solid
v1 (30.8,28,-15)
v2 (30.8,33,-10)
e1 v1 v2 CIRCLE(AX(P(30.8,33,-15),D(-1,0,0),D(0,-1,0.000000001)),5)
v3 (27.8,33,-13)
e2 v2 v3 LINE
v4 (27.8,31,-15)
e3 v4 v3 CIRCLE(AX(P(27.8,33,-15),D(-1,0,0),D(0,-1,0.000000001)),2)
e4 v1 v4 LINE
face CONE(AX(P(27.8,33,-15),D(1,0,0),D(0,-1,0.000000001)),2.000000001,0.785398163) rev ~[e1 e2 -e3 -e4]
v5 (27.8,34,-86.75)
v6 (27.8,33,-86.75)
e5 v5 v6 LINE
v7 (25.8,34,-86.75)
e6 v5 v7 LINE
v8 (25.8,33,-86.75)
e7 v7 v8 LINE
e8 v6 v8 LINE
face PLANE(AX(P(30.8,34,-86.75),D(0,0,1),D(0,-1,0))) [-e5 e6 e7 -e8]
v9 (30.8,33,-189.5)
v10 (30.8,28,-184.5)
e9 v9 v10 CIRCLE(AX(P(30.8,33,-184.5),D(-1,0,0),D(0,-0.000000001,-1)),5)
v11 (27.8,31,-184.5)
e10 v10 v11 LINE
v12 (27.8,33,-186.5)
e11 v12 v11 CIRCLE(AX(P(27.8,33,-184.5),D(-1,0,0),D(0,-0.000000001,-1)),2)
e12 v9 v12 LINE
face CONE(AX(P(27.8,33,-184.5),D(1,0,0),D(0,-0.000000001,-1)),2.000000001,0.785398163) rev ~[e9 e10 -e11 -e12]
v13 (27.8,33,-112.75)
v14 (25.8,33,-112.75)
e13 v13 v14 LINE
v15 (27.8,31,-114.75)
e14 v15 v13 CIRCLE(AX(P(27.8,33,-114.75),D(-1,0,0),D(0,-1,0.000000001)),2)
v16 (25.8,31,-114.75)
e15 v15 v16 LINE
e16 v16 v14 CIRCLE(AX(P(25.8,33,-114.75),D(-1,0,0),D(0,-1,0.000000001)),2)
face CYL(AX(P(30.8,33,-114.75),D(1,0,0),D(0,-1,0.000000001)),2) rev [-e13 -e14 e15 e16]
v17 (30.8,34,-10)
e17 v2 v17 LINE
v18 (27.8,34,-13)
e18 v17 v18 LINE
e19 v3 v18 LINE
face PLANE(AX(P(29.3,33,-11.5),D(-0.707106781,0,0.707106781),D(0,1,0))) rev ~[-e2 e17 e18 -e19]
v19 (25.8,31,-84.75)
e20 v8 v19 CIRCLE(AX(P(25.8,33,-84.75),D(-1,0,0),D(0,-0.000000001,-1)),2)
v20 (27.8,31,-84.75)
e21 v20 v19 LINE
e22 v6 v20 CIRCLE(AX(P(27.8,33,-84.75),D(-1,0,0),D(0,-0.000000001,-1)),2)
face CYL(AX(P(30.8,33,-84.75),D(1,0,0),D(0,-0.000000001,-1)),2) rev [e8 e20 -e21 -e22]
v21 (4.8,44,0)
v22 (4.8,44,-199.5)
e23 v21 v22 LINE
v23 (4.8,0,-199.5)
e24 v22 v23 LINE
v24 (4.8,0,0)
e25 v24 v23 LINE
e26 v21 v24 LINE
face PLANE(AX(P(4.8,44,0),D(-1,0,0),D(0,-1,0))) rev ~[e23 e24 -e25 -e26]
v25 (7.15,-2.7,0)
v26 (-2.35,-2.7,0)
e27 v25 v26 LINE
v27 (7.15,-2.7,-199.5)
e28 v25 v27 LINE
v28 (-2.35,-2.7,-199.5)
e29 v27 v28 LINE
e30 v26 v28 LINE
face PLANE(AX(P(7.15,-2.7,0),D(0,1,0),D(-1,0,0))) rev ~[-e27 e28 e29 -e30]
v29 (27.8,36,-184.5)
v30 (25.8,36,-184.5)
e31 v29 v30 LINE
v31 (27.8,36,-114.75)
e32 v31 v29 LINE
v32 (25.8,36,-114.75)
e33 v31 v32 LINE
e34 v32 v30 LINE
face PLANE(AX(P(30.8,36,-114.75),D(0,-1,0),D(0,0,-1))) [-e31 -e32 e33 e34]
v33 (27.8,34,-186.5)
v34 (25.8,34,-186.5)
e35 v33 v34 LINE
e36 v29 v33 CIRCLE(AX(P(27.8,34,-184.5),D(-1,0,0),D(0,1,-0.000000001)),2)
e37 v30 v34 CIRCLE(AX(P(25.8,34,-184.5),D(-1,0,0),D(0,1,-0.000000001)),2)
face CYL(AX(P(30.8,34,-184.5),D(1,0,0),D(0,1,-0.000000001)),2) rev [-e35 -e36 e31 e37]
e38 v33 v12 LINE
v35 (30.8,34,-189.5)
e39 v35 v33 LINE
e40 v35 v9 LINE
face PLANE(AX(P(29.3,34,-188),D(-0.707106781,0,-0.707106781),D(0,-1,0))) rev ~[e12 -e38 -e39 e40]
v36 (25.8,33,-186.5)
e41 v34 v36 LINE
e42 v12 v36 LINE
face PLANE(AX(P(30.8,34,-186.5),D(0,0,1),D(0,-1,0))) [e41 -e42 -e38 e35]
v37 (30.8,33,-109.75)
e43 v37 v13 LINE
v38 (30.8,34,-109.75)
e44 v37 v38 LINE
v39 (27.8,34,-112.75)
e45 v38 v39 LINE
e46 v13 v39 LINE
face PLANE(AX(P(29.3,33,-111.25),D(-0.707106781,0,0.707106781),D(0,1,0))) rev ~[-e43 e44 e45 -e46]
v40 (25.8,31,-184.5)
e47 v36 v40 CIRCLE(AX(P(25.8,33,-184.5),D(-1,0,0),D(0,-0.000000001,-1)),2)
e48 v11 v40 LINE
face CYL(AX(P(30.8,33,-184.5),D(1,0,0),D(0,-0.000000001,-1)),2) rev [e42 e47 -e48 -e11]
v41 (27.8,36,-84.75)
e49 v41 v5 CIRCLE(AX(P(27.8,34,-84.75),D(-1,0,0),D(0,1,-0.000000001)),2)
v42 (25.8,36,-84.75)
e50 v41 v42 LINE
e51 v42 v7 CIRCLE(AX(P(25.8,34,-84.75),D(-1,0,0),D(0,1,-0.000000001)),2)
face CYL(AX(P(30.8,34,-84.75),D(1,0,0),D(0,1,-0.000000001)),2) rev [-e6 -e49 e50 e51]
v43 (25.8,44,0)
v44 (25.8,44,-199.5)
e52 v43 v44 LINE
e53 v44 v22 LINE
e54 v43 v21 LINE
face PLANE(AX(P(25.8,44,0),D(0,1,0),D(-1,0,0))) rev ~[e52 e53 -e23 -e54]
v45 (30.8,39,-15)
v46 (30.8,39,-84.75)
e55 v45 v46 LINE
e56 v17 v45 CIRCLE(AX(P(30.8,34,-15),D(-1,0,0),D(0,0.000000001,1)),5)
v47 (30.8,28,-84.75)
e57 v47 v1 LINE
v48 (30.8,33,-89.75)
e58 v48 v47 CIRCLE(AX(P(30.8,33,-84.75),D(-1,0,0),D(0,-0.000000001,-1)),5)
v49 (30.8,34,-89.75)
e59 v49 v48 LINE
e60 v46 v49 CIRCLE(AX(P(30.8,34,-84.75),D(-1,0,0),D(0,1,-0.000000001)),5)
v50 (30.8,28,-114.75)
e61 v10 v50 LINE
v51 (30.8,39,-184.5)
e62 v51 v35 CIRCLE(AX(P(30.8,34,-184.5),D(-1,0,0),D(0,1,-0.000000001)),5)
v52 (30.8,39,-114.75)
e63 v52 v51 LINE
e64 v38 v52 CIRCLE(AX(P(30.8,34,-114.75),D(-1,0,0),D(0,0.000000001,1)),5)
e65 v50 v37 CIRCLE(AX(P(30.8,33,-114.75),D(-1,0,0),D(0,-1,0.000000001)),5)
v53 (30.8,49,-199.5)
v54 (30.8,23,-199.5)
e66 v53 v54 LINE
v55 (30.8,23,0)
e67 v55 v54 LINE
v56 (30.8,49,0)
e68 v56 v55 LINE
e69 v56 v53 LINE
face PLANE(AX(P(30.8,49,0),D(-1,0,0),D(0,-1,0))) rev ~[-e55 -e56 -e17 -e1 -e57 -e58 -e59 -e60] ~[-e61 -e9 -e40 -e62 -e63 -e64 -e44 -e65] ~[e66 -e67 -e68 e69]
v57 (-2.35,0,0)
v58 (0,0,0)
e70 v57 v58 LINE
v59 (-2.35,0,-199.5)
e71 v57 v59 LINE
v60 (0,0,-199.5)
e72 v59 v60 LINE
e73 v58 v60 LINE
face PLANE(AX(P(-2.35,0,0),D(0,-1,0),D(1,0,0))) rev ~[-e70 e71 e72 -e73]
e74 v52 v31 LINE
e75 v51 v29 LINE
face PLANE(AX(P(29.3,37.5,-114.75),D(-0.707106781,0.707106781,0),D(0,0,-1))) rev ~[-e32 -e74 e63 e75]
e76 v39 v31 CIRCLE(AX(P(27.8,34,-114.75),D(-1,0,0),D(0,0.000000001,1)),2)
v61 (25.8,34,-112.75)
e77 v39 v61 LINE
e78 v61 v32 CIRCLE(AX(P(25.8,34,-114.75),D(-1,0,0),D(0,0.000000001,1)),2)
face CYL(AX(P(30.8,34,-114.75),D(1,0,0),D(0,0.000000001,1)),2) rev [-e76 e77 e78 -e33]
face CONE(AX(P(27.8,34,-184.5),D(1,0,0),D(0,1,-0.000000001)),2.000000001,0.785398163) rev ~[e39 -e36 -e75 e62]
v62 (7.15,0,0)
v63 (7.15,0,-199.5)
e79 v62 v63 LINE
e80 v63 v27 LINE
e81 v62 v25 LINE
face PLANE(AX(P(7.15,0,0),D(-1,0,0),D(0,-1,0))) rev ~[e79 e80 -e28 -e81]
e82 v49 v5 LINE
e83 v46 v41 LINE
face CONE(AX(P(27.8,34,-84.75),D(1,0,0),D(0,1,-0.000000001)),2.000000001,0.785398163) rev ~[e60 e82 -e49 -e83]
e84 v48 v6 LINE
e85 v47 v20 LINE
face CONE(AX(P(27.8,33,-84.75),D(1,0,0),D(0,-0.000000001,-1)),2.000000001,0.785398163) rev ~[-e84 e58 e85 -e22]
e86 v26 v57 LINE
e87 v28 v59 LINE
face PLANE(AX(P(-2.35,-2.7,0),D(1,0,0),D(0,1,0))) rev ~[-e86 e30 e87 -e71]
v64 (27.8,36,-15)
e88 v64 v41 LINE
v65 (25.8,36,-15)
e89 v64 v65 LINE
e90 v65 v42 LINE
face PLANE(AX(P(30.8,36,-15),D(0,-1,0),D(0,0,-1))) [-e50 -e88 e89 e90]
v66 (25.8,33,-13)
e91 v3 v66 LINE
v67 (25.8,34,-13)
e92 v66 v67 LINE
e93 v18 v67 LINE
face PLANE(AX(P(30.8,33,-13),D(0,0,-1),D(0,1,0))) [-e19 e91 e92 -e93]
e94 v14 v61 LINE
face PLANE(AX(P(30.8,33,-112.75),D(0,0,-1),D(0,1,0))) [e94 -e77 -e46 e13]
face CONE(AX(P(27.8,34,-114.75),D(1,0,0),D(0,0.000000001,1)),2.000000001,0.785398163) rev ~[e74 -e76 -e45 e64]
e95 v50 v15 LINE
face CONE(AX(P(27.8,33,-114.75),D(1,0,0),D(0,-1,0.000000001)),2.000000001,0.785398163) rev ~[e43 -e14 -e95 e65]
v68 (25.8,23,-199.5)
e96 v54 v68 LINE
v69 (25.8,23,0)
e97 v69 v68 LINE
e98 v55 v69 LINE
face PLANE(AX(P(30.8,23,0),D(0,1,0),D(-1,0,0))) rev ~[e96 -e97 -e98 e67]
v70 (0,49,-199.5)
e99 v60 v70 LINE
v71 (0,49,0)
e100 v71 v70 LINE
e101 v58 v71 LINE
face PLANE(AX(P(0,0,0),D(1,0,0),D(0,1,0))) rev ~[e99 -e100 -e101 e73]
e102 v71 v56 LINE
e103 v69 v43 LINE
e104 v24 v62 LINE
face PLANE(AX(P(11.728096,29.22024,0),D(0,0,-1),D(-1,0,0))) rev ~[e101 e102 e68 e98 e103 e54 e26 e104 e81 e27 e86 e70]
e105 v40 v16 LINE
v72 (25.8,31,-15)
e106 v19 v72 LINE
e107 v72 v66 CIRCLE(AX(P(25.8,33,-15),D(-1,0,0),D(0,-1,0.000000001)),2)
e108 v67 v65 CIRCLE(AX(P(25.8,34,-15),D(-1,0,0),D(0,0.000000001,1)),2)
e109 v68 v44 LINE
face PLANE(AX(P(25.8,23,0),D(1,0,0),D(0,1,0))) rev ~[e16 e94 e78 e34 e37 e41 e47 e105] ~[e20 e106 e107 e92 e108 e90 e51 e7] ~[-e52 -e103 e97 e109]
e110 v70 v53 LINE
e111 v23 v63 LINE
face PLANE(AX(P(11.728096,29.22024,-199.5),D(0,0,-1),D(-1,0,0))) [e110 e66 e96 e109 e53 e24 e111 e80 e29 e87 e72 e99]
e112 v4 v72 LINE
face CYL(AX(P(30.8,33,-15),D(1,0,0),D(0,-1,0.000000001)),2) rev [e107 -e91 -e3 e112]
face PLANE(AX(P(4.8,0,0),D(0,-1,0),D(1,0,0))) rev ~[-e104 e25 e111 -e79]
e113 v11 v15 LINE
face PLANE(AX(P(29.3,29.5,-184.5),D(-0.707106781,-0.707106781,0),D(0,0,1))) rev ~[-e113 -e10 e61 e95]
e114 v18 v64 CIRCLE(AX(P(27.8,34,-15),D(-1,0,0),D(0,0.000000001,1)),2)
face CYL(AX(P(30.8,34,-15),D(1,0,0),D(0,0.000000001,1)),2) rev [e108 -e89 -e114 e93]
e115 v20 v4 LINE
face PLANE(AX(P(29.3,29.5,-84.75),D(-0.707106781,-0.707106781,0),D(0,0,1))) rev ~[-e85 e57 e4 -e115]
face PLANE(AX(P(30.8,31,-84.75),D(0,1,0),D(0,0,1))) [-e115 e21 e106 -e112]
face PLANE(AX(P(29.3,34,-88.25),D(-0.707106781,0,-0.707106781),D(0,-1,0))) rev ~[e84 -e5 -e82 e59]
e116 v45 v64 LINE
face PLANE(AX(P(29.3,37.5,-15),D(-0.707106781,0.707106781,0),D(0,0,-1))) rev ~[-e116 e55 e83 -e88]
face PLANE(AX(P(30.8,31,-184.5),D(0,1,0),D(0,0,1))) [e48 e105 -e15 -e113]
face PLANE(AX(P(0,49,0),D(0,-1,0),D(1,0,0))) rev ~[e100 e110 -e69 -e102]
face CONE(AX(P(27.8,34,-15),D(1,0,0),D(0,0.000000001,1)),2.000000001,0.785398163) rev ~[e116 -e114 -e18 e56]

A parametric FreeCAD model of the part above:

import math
import FreeCAD as App
import Part
import Sketcher
from FreeCAD import Vector


def edges_at(feature, points):
    """Names of the edges that pass closest to the given points."""
    edges = feature.Shape.Edges
    near = lambda p: min(range(len(edges)), key=lambda i: edges[i].distToShape(Part.Vertex(*p))[0])
    return sorted({f"Edge{near(p) + 1}" for p in points})

doc = App.newDocument("Part")
body = doc.addObject("PartDesign::Body", "Body")

sketch1 = body.newObject("Sketcher::SketchObject", "Sketch")
sketch1.AttachmentSupport = (doc.getObject("XY_Plane"), [""])
sketch1.MapMode = "FlatFace"
sketch1.addGeometry([
    Part.LineSegment(Vector(0, 49, 0), Vector(0, 0, 0)),
    Part.LineSegment(Vector(0, 0, 0), Vector(-2.35, 0, 0)),
    Part.LineSegment(Vector(-2.35, 0, 0), Vector(-2.35, -2.7, 0)),
    Part.LineSegment(Vector(-2.35, -2.7, 0), Vector(7.15, -2.7, 0)),
    Part.LineSegment(Vector(7.15, -2.7, 0), Vector(7.15, 0, 0)),
    Part.LineSegment(Vector(7.15, 0, 0), Vector(4.8, 0, 0)),
    Part.LineSegment(Vector(4.8, 0, 0), Vector(4.8, 44, 0)),
    Part.LineSegment(Vector(4.8, 44, 0), Vector(25.8, 44, 0)),
    Part.LineSegment(Vector(25.8, 44, 0), Vector(25.8, 23, 0)),
    Part.LineSegment(Vector(25.8, 23, 0), Vector(30.8, 23, 0)),
    Part.LineSegment(Vector(30.8, 23, 0), Vector(30.8, 49, 0)),
    Part.LineSegment(Vector(30.8, 49, 0), Vector(0, 49, 0)),
], False)
sketch1.addConstraint([
    Sketcher.Constraint("Coincident", 0, 2, 1, 1),
    Sketcher.Constraint("Coincident", 1, 2, 2, 1),
    Sketcher.Constraint("Coincident", 2, 2, 3, 1),
    Sketcher.Constraint("Coincident", 3, 2, 4, 1),
    Sketcher.Constraint("Coincident", 4, 2, 5, 1),
    Sketcher.Constraint("Coincident", 5, 2, 6, 1),
    Sketcher.Constraint("Coincident", 6, 2, 7, 1),
    Sketcher.Constraint("Coincident", 7, 2, 8, 1),
    Sketcher.Constraint("Coincident", 8, 2, 9, 1),
    Sketcher.Constraint("Coincident", 9, 2, 10, 1),
    Sketcher.Constraint("Coincident", 10, 2, 11, 1),
    Sketcher.Constraint("Coincident", 11, 2, 0, 1),
    Sketcher.Constraint("Vertical", 0),
    Sketcher.Constraint("Horizontal", 1),
    Sketcher.Constraint("Vertical", 2),
    Sketcher.Constraint("Horizontal", 3),
    Sketcher.Constraint("Vertical", 4),
    Sketcher.Constraint("Horizontal", 5),
    Sketcher.Constraint("Vertical", 6),
    Sketcher.Constraint("Horizontal", 7),
    Sketcher.Constraint("Vertical", 8),
    Sketcher.Constraint("Horizontal", 9),
    Sketcher.Constraint("Vertical", 10),
    Sketcher.Constraint("Horizontal", 11),
    Sketcher.Constraint("Coincident", 0, 2, -1, 1),
    Sketcher.Constraint("PointOnObject", 4, 2, -1),
    Sketcher.Constraint("Equal", 1, 5),
    Sketcher.Constraint("Equal", 7, 8),
    Sketcher.Constraint("DistanceX", 7, 1, 7, 2, 21.0),
    Sketcher.Constraint("DistanceX", 9, 1, 9, 2, 5.0),
    Sketcher.Constraint("DistanceY", 0, 2, 0, 1, 49.0),
    Sketcher.Constraint("DistanceY", 6, 1, 6, 2, 44.0),
    Sketcher.Constraint("DistanceX", 3, 1, 3, 2, 9.5),
    Sketcher.Constraint("DistanceX", 11, 2, 11, 1, 30.8),
    Sketcher.Constraint("DistanceY", 2, 2, 2, 1, 2.7),
])
pad1 = body.newObject("PartDesign::Pad", "Pad")
pad1.Profile = sketch1
pad1.Length = 199.5
pad1.Reversed = True

sketch2 = body.newObject("Sketcher::SketchObject", "Sketch001")
sketch2.AttachmentSupport = (doc.getObject("YZ_Plane"), [""])
sketch2.MapMode = "FlatFace"
sketch2.AttachmentOffset = App.Placement(Vector(0, 0, 30.8), App.Rotation())
sketch2.addGeometry([
    Part.LineSegment(Vector(36, -84.75, 0), Vector(36, -15, 0)),
    Part.ArcOfCircle(Part.Circle(Vector(34, -15, 0), Vector(0, 0, 1), 2), math.radians(0), math.radians(90)),
    Part.LineSegment(Vector(34, -13, 0), Vector(33, -13, 0)),
    Part.ArcOfCircle(Part.Circle(Vector(33, -15, 0), Vector(0, 0, 1), 2), math.radians(90), math.radians(180)),
    Part.LineSegment(Vector(31, -15, 0), Vector(31, -84.75, 0)),
    Part.ArcOfCircle(Part.Circle(Vector(33, -84.75, 0), Vector(0, 0, 1), 2), math.radians(-180), math.radians(-90)),
    Part.LineSegment(Vector(33, -86.75, 0), Vector(34, -86.75, 0)),
    Part.ArcOfCircle(Part.Circle(Vector(34, -84.75, 0), Vector(0, 0, 1), 2), math.radians(-90), math.radians(0)),
    Part.LineSegment(Vector(36, -184.5, 0), Vector(36, -114.75, 0)),
    Part.ArcOfCircle(Part.Circle(Vector(34, -114.75, 0), Vector(0, 0, 1), 2), math.radians(0), math.radians(90)),
    Part.LineSegment(Vector(34, -112.75, 0), Vector(33, -112.75, 0)),
    Part.ArcOfCircle(Part.Circle(Vector(33, -114.75, 0), Vector(0, 0, 1), 2), math.radians(90), math.radians(180)),
    Part.LineSegment(Vector(31, -114.75, 0), Vector(31, -184.5, 0)),
    Part.ArcOfCircle(Part.Circle(Vector(33, -184.5, 0), Vector(0, 0, 1), 2), math.radians(-180), math.radians(-90)),
    Part.LineSegment(Vector(33, -186.5, 0), Vector(34, -186.5, 0)),
    Part.ArcOfCircle(Part.Circle(Vector(34, -184.5, 0), Vector(0, 0, 1), 2), math.radians(-90), math.radians(0)),
], False)
sketch2.addConstraint([
    Sketcher.Constraint("Tangent", 0, 2, 1, 1),
    Sketcher.Constraint("Tangent", 1, 2, 2, 1),
    Sketcher.Constraint("Tangent", 2, 2, 3, 1),
    Sketcher.Constraint("Tangent", 3, 2, 4, 1),
    Sketcher.Constraint("Tangent", 4, 2, 5, 1),
    Sketcher.Constraint("Tangent", 5, 2, 6, 1),
    Sketcher.Constraint("Tangent", 6, 2, 7, 1),
    Sketcher.Constraint("Tangent", 7, 2, 0, 1),
    Sketcher.Constraint("Tangent", 8, 2, 9, 1),
    Sketcher.Constraint("Tangent", 9, 2, 10, 1),
    Sketcher.Constraint("Tangent", 10, 2, 11, 1),
    Sketcher.Constraint("Tangent", 11, 2, 12, 1),
    Sketcher.Constraint("Tangent", 12, 2, 13, 1),
    Sketcher.Constraint("Tangent", 13, 2, 14, 1),
    Sketcher.Constraint("Tangent", 14, 2, 15, 1),
    Sketcher.Constraint("Tangent", 15, 2, 8, 1),
    Sketcher.Constraint("Vertical", 0),
    Sketcher.Constraint("Horizontal", 2),
    Sketcher.Constraint("Vertical", 4),
    Sketcher.Constraint("Horizontal", 6),
    Sketcher.Constraint("Vertical", 8),
    Sketcher.Constraint("Horizontal", 10),
    Sketcher.Constraint("Vertical", 12),
    Sketcher.Constraint("Horizontal", 14),
    Sketcher.Constraint("Equal", 1, 3),
    Sketcher.Constraint("Equal", 3, 5),
    Sketcher.Constraint("Equal", 5, 7),
    Sketcher.Constraint("Equal", 7, 9),
    Sketcher.Constraint("Equal", 9, 11),
    Sketcher.Constraint("Equal", 11, 13),
    Sketcher.Constraint("Equal", 13, 15),
    Sketcher.Constraint("Vertical", 7, 3, 9, 3),
    Sketcher.Constraint("Vertical", 5, 3, 11, 3),
    Sketcher.Constraint("Equal", 4, 8),
    Sketcher.Constraint("Radius", 1, 2.0),
    Sketcher.Constraint("DistanceX", 2, 2, 2, 1, 1.0),
    Sketcher.Constraint("DistanceX", -1, 1, 1, 3, 34.0),
    Sketcher.Constraint("DistanceY", 1, 3, -1, 1, 15.0),
    Sketcher.Constraint("DistanceY", 9, 3, 7, 3, 30.0),
    Sketcher.Constraint("DistanceY", 0, 1, 0, 2, 69.75),
])
pocket1 = body.newObject("PartDesign::Pocket", "Pocket")
pocket1.Profile = sketch2
pocket1.Length = 5
doc.recompute()

chamfer = body.newObject("PartDesign::Chamfer", "Chamfer")
chamfer.Base = (pocket1, edges_at(pocket1, [
    (30.8, 31.586, -185.914),
    (30.8, 33.5, -186.5),
    (30.8, 35.414, -185.914),
    (30.8, 36, -149.625),
    (30.8, 35.414, -113.336),
    (30.8, 33.5, -112.75),
    (30.8, 31.586, -113.336),
    (30.8, 31, -149.625),
    (30.8, 31.586, -86.164),
    (30.8, 33.5, -86.75),
    (30.8, 35.414, -86.164),
    (30.8, 36, -49.875),
    (30.8, 35.414, -13.586),
    (30.8, 33.5, -13),
    (30.8, 31.586, -13.586),
    (30.8, 31, -49.875),
]))
chamfer.Size = 3

doc.recompute()
